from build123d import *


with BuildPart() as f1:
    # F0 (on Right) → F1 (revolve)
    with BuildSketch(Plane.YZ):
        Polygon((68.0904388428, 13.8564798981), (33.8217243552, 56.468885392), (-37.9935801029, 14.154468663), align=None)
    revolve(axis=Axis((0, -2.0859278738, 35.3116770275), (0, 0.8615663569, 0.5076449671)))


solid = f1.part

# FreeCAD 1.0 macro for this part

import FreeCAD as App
import Part
import Sketcher

V = App.Vector


def add_polygon(sketch, points):
    """Adds a closed chain of lines whose ends are joined by coincident constraints."""
    first, n = sketch.GeometryCount, len(points)
    for a, b in zip(points, points[1:] + points[:1]):
        sketch.addGeometry(Part.LineSegment(App.Vector(*a, 0), App.Vector(*b, 0)), False)
    for i in range(n):
        sketch.addConstraint(Sketcher.Constraint("Coincident", first + i, 2, first + (i + 1) % n, 1))

doc = App.newDocument("Part")
params = doc.addObject("Spreadsheet::Sheet", "Params")
for row, (alias, value) in enumerate([
    ("revolution_angle", "360 deg"),
], start=1):
    params.set(f"A{row}", alias)
    params.set(f"B{row}", "=" + value)
    params.setAlias(f"B{row}", alias)

body = doc.addObject("PartDesign::Body", "Body")

sketch1 = body.newObject("Sketcher::SketchObject", "Sketch")
sketch1.AttachmentSupport = (doc.getObject("YZ_Plane"), [""])
sketch1.MapMode = "FlatFace"
add_polygon(sketch1, [(68, 14), (34, 56), (-38, 14)])
sketch1.addGeometry(Part.LineSegment(V(-38, 14, 0), V(41, 60, 0)), True)
sketch1.addConstraint([
    Sketcher.Constraint("Coincident", 3, 1, 1, 2),
    Sketcher.Constraint("Parallel", 1, 3),
    Sketcher.Constraint("Distance", 1, 83.354351),
    Sketcher.Constraint("Distance", 3, 91.247149),
    Sketcher.Constraint("DistanceX", 1, 2, -1, 1, 37.99358),
    Sketcher.Constraint("DistanceY", -1, 1, 1, 2, 14.154469),
    Sketcher.Constraint("DistanceX", -1, 1, 2, 2, 68.090439),
    Sketcher.Constraint("DistanceY", -1, 1, 2, 2, 13.85648),
    Sketcher.Constraint("DistanceX", 0, 2, 3, 2, 6.800169),
])
revolution = body.newObject("PartDesign::Revolution", "Revolution")
revolution.Profile = sketch1
revolution.ReferenceAxis = (sketch1, ["Axis0"])
revolution.setExpression("Angle", "Params.revolution_angle")

doc.recompute()
